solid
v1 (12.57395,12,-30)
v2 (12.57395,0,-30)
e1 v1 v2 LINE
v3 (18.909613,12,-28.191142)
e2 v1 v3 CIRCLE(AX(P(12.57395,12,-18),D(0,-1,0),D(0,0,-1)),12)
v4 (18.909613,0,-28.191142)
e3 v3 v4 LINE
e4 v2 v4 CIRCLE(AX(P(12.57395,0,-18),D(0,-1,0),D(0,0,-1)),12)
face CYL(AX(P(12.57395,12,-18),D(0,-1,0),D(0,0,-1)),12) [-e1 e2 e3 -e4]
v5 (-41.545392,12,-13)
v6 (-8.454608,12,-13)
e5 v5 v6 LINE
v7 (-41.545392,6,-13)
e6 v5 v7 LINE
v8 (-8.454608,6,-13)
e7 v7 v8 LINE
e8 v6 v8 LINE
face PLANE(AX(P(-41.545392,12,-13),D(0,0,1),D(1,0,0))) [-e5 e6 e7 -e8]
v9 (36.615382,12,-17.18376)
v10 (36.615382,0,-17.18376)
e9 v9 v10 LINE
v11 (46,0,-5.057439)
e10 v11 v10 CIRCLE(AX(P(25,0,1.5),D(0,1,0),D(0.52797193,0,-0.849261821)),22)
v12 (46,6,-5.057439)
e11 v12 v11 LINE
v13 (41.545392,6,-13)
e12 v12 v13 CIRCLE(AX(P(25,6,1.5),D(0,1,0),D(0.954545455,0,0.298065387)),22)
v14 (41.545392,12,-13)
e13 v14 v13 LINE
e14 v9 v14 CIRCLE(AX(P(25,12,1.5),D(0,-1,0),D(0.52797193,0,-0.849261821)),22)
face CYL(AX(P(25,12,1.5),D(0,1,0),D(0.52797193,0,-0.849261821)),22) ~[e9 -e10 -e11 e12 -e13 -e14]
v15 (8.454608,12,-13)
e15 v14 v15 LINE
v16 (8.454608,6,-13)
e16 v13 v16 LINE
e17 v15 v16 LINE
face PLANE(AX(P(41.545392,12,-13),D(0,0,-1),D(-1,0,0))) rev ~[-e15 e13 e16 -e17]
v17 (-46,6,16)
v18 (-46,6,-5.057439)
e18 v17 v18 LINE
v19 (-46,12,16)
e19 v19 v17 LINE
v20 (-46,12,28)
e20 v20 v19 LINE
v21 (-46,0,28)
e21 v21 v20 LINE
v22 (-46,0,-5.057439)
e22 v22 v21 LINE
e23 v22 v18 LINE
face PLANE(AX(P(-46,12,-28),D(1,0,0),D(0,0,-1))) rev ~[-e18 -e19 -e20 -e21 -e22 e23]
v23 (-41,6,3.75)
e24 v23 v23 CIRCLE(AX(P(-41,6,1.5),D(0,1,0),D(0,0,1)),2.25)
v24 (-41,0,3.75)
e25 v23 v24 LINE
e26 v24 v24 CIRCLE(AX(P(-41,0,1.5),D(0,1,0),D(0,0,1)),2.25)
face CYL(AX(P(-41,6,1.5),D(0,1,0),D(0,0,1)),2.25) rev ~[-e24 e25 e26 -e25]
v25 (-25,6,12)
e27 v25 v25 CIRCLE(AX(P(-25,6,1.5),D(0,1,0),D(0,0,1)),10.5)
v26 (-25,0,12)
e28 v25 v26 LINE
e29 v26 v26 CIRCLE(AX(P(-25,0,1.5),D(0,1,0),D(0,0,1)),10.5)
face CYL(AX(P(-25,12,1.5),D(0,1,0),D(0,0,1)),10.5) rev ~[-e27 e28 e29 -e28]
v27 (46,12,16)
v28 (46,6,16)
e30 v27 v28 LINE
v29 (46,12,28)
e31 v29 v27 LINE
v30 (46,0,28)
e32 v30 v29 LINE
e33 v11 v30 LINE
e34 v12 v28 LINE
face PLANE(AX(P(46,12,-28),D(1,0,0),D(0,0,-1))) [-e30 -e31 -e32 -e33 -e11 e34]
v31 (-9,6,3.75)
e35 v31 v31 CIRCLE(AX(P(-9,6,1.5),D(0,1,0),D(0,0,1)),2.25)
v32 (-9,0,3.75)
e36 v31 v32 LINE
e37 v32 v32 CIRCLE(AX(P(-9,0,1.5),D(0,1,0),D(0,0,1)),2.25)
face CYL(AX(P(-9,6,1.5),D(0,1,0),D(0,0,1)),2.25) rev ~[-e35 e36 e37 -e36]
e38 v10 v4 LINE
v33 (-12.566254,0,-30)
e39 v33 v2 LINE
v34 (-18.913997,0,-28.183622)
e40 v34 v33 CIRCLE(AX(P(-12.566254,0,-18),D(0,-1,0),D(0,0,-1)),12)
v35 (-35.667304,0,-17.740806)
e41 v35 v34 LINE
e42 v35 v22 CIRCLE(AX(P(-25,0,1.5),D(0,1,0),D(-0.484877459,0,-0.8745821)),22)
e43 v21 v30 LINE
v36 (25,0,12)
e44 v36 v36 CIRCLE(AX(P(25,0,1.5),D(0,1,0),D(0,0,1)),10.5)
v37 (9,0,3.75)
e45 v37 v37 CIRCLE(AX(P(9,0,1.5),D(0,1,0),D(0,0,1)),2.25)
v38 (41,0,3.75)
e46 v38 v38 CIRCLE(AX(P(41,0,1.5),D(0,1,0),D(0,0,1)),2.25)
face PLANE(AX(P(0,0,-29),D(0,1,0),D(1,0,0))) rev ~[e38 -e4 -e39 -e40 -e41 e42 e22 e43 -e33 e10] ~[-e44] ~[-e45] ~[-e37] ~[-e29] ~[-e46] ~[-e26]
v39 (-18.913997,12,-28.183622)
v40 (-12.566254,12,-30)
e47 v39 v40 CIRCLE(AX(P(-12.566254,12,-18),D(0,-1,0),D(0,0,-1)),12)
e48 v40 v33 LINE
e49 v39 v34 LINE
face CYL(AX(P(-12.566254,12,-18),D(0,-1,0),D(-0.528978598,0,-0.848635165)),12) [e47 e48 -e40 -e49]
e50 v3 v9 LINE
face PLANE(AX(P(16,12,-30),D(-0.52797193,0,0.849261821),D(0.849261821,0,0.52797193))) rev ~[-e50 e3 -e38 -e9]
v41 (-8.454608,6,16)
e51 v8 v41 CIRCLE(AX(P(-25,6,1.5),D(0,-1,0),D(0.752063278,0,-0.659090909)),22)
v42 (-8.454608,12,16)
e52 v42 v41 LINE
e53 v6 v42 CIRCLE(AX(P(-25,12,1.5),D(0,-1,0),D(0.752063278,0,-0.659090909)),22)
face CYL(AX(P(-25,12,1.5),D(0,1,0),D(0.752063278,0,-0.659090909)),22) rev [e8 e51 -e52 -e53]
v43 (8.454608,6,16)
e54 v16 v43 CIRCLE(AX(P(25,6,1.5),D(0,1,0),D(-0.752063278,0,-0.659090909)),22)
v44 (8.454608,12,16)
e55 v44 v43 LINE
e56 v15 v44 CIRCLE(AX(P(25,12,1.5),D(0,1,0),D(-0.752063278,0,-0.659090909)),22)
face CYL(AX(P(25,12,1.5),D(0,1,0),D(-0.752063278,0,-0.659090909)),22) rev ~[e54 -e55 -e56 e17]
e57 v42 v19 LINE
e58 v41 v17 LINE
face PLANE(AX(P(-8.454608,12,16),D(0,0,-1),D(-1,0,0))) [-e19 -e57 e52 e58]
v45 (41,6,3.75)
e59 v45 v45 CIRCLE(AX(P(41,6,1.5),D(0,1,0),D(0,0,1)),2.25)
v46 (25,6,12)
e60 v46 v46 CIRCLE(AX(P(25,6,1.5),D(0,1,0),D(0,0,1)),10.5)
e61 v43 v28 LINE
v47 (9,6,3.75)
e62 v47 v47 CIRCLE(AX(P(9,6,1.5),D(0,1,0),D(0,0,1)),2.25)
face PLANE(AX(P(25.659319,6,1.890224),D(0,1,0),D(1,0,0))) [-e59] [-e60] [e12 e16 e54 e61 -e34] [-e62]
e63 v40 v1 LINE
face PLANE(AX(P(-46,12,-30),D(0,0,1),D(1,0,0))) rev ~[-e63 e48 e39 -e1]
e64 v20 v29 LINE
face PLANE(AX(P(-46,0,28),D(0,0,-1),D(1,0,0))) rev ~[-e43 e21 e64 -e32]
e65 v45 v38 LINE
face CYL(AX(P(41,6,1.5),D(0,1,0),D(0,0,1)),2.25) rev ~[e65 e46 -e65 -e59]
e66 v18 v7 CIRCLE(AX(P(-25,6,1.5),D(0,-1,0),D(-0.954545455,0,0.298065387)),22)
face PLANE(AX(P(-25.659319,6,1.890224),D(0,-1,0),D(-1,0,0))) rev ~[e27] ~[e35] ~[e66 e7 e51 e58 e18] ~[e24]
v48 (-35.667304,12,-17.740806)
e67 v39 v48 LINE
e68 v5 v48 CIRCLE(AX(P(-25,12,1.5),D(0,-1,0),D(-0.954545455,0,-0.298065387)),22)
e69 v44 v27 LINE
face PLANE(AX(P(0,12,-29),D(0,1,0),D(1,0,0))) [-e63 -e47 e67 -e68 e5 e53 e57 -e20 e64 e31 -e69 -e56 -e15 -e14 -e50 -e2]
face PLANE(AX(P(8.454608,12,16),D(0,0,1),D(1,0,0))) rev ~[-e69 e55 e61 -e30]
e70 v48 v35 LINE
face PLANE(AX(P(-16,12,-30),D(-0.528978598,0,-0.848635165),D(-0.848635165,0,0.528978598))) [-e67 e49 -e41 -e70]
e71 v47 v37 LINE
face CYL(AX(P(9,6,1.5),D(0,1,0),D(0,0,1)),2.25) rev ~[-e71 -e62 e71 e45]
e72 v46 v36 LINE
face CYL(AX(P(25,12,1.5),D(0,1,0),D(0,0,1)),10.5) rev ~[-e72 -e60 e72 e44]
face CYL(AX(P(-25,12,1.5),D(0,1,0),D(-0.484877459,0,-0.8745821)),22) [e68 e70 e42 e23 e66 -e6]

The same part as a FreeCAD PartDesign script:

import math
import FreeCAD as App
import Part
import Sketcher
from FreeCAD import Vector


def edges_at(feature, points):
    """Names of the edges that pass closest to the given points."""
    edges = feature.Shape.Edges
    near = lambda p: min(range(len(edges)), key=lambda i: edges[i].distToShape(Part.Vertex(*p))[0])
    return sorted({f"Edge{near(p) + 1}" for p in points})


def add_polygon(sketch, points):
    """Adds a closed chain of lines whose ends are joined by coincident constraints."""
    first, n = sketch.GeometryCount, len(points)
    for a, b in zip(points, points[1:] + points[:1]):
        sketch.addGeometry(Part.LineSegment(App.Vector(*a, 0), App.Vector(*b, 0)), False)
    for i in range(n):
        sketch.addConstraint(Sketcher.Constraint("Coincident", first + i, 2, first + (i + 1) % n, 1))

doc = App.newDocument("Part")
body = doc.addObject("PartDesign::Body", "Body")

sketch1 = body.newObject("Sketcher::SketchObject", "Sketch")
sketch1.AttachmentSupport = (doc.getObject("XZ_Plane"), [""])
sketch1.MapMode = "FlatFace"
add_polygon(sketch1, [(-46, -28), (-46, 28), (46, 28), (46, -28)])
sketch1.addConstraint(Sketcher.Constraint("Vertical", 0))
sketch1.addConstraint(Sketcher.Constraint("Horizontal", 1))
sketch1.addConstraint(Sketcher.Constraint("Vertical", 2))
sketch1.addConstraint(Sketcher.Constraint("Horizontal", 3))
sketch1.addConstraint(Sketcher.Constraint("Symmetric", 0, 2, 2, 2, -1, 1))
sketch1.addConstraint(Sketcher.Constraint("DistanceX", 1, 1, 1, 2, 92.0))
sketch1.addConstraint(Sketcher.Constraint("DistanceY", 0, 1, 0, 2, 56.0))
pad1 = body.newObject("PartDesign::Pad", "Pad")
pad1.Profile = sketch1
pad1.Length = 12
pad1.Reversed = True

sketch2 = body.newObject("Sketcher::SketchObject", "Sketch001")
sketch2.AttachmentSupport = (doc.getObject("XZ_Plane"), [""])
sketch2.MapMode = "FlatFace"
sketch2.AttachmentOffset = App.Placement(Vector(0, 0, -12), App.Rotation())
add_polygon(sketch2, [(-46, -30), (-46, -28), (46, -28), (46, -30)])
sketch2.addConstraint(Sketcher.Constraint("Vertical", 0))
sketch2.addConstraint(Sketcher.Constraint("Horizontal", 1))
sketch2.addConstraint(Sketcher.Constraint("Vertical", 2))
sketch2.addConstraint(Sketcher.Constraint("Horizontal", 3))
sketch2.addConstraint(Sketcher.Constraint("DistanceX", 1, 1, 1, 2, 92.0))
sketch2.addConstraint(Sketcher.Constraint("DistanceY", 0, 1, 0, 2, 2.0))
sketch2.addConstraint(Sketcher.Constraint("DistanceX", 0, 2, -1, 1, 46.0))
sketch2.addConstraint(Sketcher.Constraint("DistanceY", 0, 2, -1, 1, 28.0))
pad2 = body.newObject("PartDesign::Pad", "Pad001")
pad2.Profile = sketch2
pad2.Length = 12

sketch3 = body.newObject("Sketcher::SketchObject", "Sketch002")
sketch3.AttachmentSupport = (doc.getObject("XZ_Plane"), [""])
sketch3.MapMode = "FlatFace"
sketch3.AttachmentOffset = App.Placement(Vector(0, 0, -12), App.Rotation())
sketch3.addGeometry(Part.Circle(Vector(-25, 2, 0), Vector(0, 0, 1), 10), False)
sketch3.addConstraint(Sketcher.Constraint("Diameter", 0, 21.0))
sketch3.addConstraint(Sketcher.Constraint("DistanceX", 0, 3, -1, 1, 25.0))
sketch3.addConstraint(Sketcher.Constraint("DistanceY", -1, 1, 0, 3, 1.5))
pocket1 = body.newObject("PartDesign::Pocket", "Pocket")
pocket1.Profile = sketch3
pocket1.Type = "UpToFirst"
pocket1.Reversed = True

sketch4 = body.newObject("Sketcher::SketchObject", "Sketch003")
sketch4.AttachmentSupport = (doc.getObject("XZ_Plane"), [""])
sketch4.MapMode = "FlatFace"
sketch4.AttachmentOffset = App.Placement(Vector(0, 0, -12), App.Rotation())
sketch4.addGeometry(Part.Circle(Vector(25, 2, 0), Vector(0, 0, 1), 10), False)
sketch4.addConstraint(Sketcher.Constraint("Diameter", 0, 21.0))
sketch4.addConstraint(Sketcher.Constraint("DistanceX", -1, 1, 0, 3, 25.0))
sketch4.addConstraint(Sketcher.Constraint("DistanceY", -1, 1, 0, 3, 1.5))
pocket2 = body.newObject("PartDesign::Pocket", "Pocket001")
pocket2.Profile = sketch4
pocket2.Type = "UpToFirst"
pocket2.Reversed = True

sketch5 = body.newObject("Sketcher::SketchObject", "Sketch004")
sketch5.AttachmentSupport = (doc.getObject("XZ_Plane"), [""])
sketch5.MapMode = "FlatFace"
sketch5.AttachmentOffset = App.Placement(Vector(0, 0, -12), App.Rotation())
sketch5.addGeometry(Part.LineSegment(Vector(-46, 8, 0), Vector(-46, 16, 0)), False)
sketch5.addGeometry(Part.LineSegment(Vector(-46, 16, 0), Vector(-8, 16, 0)), False)
sketch5.addGeometry(Part.ArcOfCircle(Part.Circle(Vector(-25, 2, 0), Vector(0, 0, 1), 22), math.radians(-41), math.radians(41)), False)
sketch5.addGeometry(Part.LineSegment(Vector(-8, -13, 0), Vector(-42, -13, 0)), False)
sketch5.addGeometry(Part.ArcOfCircle(Part.Circle(Vector(-25, 2, 0), Vector(0, 0, 1), 22), math.radians(163), math.radians(221)), False)
sketch5.addGeometry(Part.LineSegment(Vector(46, 16, 0), Vector(46, 8, 0)), False)
sketch5.addGeometry(Part.ArcOfCircle(Part.Circle(Vector(25, 2, 0), Vector(0, 0, 1), 22), math.radians(-41), math.radians(17)), False)
sketch5.addGeometry(Part.LineSegment(Vector(42, -13, 0), Vector(8, -13, 0)), False)
sketch5.addGeometry(Part.ArcOfCircle(Part.Circle(Vector(25, 2, 0), Vector(0, 0, 1), 22), math.radians(139), math.radians(221)), False)
sketch5.addGeometry(Part.LineSegment(Vector(8, 16, 0), Vector(46, 16, 0)), False)
sketch5.addConstraint(Sketcher.Constraint("Coincident", 0, 2, 1, 1))
sketch5.addConstraint(Sketcher.Constraint("Coincident", 1, 2, 2, 2))
sketch5.addConstraint(Sketcher.Constraint("Coincident", 2, 1, 3, 1))
sketch5.addConstraint(Sketcher.Constraint("Coincident", 3, 2, 4, 2))
sketch5.addConstraint(Sketcher.Constraint("Coincident", 4, 1, 0, 1))
sketch5.addConstraint(Sketcher.Constraint("Coincident", 5, 2, 6, 2))
sketch5.addConstraint(Sketcher.Constraint("Coincident", 6, 1, 7, 1))
sketch5.addConstraint(Sketcher.Constraint("Coincident", 7, 2, 8, 2))
sketch5.addConstraint(Sketcher.Constraint("Coincident", 8, 1, 9, 1))
sketch5.addConstraint(Sketcher.Constraint("Coincident", 9, 2, 5, 1))
sketch5.addConstraint(Sketcher.Constraint("Vertical", 0))
sketch5.addConstraint(Sketcher.Constraint("Horizontal", 1))
sketch5.addConstraint(Sketcher.Constraint("Horizontal", 3))
sketch5.addConstraint(Sketcher.Constraint("Vertical", 5))
sketch5.addConstraint(Sketcher.Constraint("Horizontal", 7))
sketch5.addConstraint(Sketcher.Constraint("Horizontal", 9))
sketch5.addConstraint(Sketcher.Constraint("Coincident", 4, 3, 2, 3))
sketch5.addConstraint(Sketcher.Constraint("Coincident", 8, 3, 6, 3))
sketch5.addConstraint(Sketcher.Constraint("Equal", 2, 4))
sketch5.addConstraint(Sketcher.Constraint("Equal", 4, 6))
sketch5.addConstraint(Sketcher.Constraint("Equal", 6, 8))
sketch5.addConstraint(Sketcher.Constraint("Symmetric", 2, 3, 6, 3, -2))
sketch5.addConstraint(Sketcher.Constraint("Symmetric", 0, 2, 9, 2, -2))
sketch5.addConstraint(Sketcher.Constraint("Horizontal", 3, 2, 6, 1))
sketch5.addConstraint(Sketcher.Constraint("Vertical", 1, 2, 2, 1))
sketch5.addConstraint(Sketcher.Constraint("Radius", 2, 22.0))
sketch5.addConstraint(Sketcher.Constraint("DistanceX", 2, 3, -1, 1, 25.0))
sketch5.addConstraint(Sketcher.Constraint("DistanceX", 0, 2, -1, 1, 46.0))
sketch5.addConstraint(Sketcher.Constraint("DistanceY", -1, 1, 0, 2, 16.0))
sketch5.addConstraint(Sketcher.Constraint("DistanceY", 2, 1, -1, 1, 13.0))
pocket3 = body.newObject("PartDesign::Pocket", "Pocket002")
pocket3.Profile = sketch5
pocket3.Length = 6
pocket3.Reversed = True

sketch6 = body.newObject("Sketcher::SketchObject", "Sketch005")
sketch6.AttachmentSupport = (doc.getObject("XZ_Plane"), [""])
sketch6.MapMode = "FlatFace"
sketch6.AttachmentOffset = App.Placement(Vector(0, 0, -6), App.Rotation())
sketch6.addGeometry(Part.Circle(Vector(-41, 1.5, 0), Vector(0, 0, 1), 2.2), False)
sketch6.addConstraint(Sketcher.Constraint("Diameter", 0, 4.5))
sketch6.addConstraint(Sketcher.Constraint("DistanceX", 0, 3, -1, 1, 41.0))
sketch6.addConstraint(Sketcher.Constraint("DistanceY", -1, 1, 0, 3, 1.5))
pocket4 = body.newObject("PartDesign::Pocket", "Pocket003")
pocket4.Profile = sketch6
pocket4.Type = "UpToFirst"
pocket4.Reversed = True

sketch7 = body.newObject("Sketcher::SketchObject", "Sketch006")
sketch7.AttachmentSupport = (doc.getObject("XZ_Plane"), [""])
sketch7.MapMode = "FlatFace"
sketch7.AttachmentOffset = App.Placement(Vector(0, 0, -6), App.Rotation())
sketch7.addGeometry(Part.Circle(Vector(-9, 1.5, 0), Vector(0, 0, 1), 2.2), False)
sketch7.addConstraint(Sketcher.Constraint("Diameter", 0, 4.5))
sketch7.addConstraint(Sketcher.Constraint("DistanceX", 0, 3, -1, 1, 9.0))
sketch7.addConstraint(Sketcher.Constraint("DistanceY", -1, 1, 0, 3, 1.5))
pocket5 = body.newObject("PartDesign::Pocket", "Pocket004")
pocket5.Profile = sketch7
pocket5.Type = "UpToFirst"
pocket5.Reversed = True

sketch8 = body.newObject("Sketcher::SketchObject", "Sketch007")
sketch8.AttachmentSupport = (doc.getObject("XZ_Plane"), [""])
sketch8.MapMode = "FlatFace"
sketch8.AttachmentOffset = App.Placement(Vector(0, 0, -6), App.Rotation())
sketch8.addGeometry(Part.Circle(Vector(9, 1.5, 0), Vector(0, 0, 1), 2.2), False)
sketch8.addConstraint(Sketcher.Constraint("Diameter", 0, 4.5))
sketch8.addConstraint(Sketcher.Constraint("DistanceX", -1, 1, 0, 3, 9.0))
sketch8.addConstraint(Sketcher.Constraint("DistanceY", -1, 1, 0, 3, 1.5))
pocket6 = body.newObject("PartDesign::Pocket", "Pocket005")
pocket6.Profile = sketch8
pocket6.Type = "UpToFirst"
pocket6.Reversed = True

sketch9 = body.newObject("Sketcher::SketchObject", "Sketch008")
sketch9.AttachmentSupport = (doc.getObject("XZ_Plane"), [""])
sketch9.MapMode = "FlatFace"
sketch9.AttachmentOffset = App.Placement(Vector(0, 0, -6), App.Rotation())
sketch9.addGeometry(Part.Circle(Vector(41, 1.5, 0), Vector(0, 0, 1), 2.2), False)
sketch9.addConstraint(Sketcher.Constraint("Diameter", 0, 4.5))
sketch9.addConstraint(Sketcher.Constraint("DistanceX", -1, 1, 0, 3, 41.0))
sketch9.addConstraint(Sketcher.Constraint("DistanceY", -1, 1, 0, 3, 1.5))
pocket7 = body.newObject("PartDesign::Pocket", "Pocket006")
pocket7.Profile = sketch9
pocket7.Type = "UpToFirst"
pocket7.Reversed = True

sketch10 = body.newObject("Sketcher::SketchObject", "Sketch009")
sketch10.AttachmentSupport = (doc.getObject("XZ_Plane"), [""])
sketch10.MapMode = "FlatFace"
sketch10.AttachmentOffset = App.Placement(Vector(0, 0, -12), App.Rotation())
sketch10.addGeometry(Part.LineSegment(Vector(-46, -30, 0), Vector(-46, -5, 0)), False)
sketch10.addGeometry(Part.ArcOfCircle(Part.Circle(Vector(-25, 1, 0), Vector(0, 0, 1), 22), math.radians(-163), math.radians(-119)), False)
sketch10.addGeometry(Part.LineSegment(Vector(-36, -18, 0), Vector(-16, -30, 0)), False)
sketch10.addGeometry(Part.LineSegment(Vector(-16, -30, 0), Vector(-46, -30, 0)), False)
sketch10.addConstraint(Sketcher.Constraint("Coincident", 0, 2, 1, 1))
sketch10.addConstraint(Sketcher.Constraint("Coincident", 1, 2, 2, 1))
sketch10.addConstraint(Sketcher.Constraint("Coincident", 2, 2, 3, 1))
sketch10.addConstraint(Sketcher.Constraint("Coincident", 3, 2, 0, 1))
sketch10.addConstraint(Sketcher.Constraint("Vertical", 0))
sketch10.addConstraint(Sketcher.Constraint("Horizontal", 3))
sketch10.addConstraint(Sketcher.Constraint("Radius", 1, 22.0))
sketch10.addConstraint(Sketcher.Constraint("DistanceX", 3, 2, 3, 1, 30.0))
sketch10.addConstraint(Sketcher.Constraint("DistanceX", 1, 3, -1, 1, 25.0))
sketch10.addConstraint(Sketcher.Constraint("DistanceX", 0, 2, -1, 1, 46.0))
sketch10.addConstraint(Sketcher.Constraint("DistanceY", 2, 2, -1, 1, 30.0))
sketch10.addConstraint(Sketcher.Constraint("DistanceY", -1, 1, 1, 3, 1.5))
sketch10.addConstraint(Sketcher.Constraint("Distance", 2, 23.175217))
pocket8 = body.newObject("PartDesign::Pocket", "Pocket007")
pocket8.Profile = sketch10
pocket8.Type = "UpToFirst"
pocket8.Reversed = True

sketch11 = body.newObject("Sketcher::SketchObject", "Sketch010")
sketch11.AttachmentSupport = (doc.getObject("XZ_Plane"), [""])
sketch11.MapMode = "FlatFace"
sketch11.AttachmentOffset = App.Placement(Vector(0, 0, -12), App.Rotation())
sketch11.addGeometry(Part.LineSegment(Vector(46, -5, 0), Vector(46, -30, 0)), False)
sketch11.addGeometry(Part.LineSegment(Vector(46, -30, 0), Vector(16, -30, 0)), False)
sketch11.addGeometry(Part.LineSegment(Vector(16, -30, 0), Vector(37, -17, 0)), False)
sketch11.addGeometry(Part.ArcOfCircle(Part.Circle(Vector(25, 2, 0), Vector(0, 0, 1), 22), math.radians(-58), math.radians(-17)), False)
sketch11.addConstraint(Sketcher.Constraint("Coincident", 0, 2, 1, 1))
sketch11.addConstraint(Sketcher.Constraint("Coincident", 1, 2, 2, 1))
sketch11.addConstraint(Sketcher.Constraint("Tangent", 2, 2, 3, 1))
sketch11.addConstraint(Sketcher.Constraint("Coincident", 3, 2, 0, 1))
sketch11.addConstraint(Sketcher.Constraint("Vertical", 0))
sketch11.addConstraint(Sketcher.Constraint("Horizontal", 1))
sketch11.addConstraint(Sketcher.Constraint("Radius", 3, 22.0))
sketch11.addConstraint(Sketcher.Constraint("DistanceX", 1, 2, 1, 1, 30.0))
sketch11.addConstraint(Sketcher.Constraint("DistanceX", -1, 1, 3, 3, 25.0))
sketch11.addConstraint(Sketcher.Constraint("DistanceX", -1, 1, 0, 2, 46.0))
sketch11.addConstraint(Sketcher.Constraint("DistanceY", 0, 2, -1, 1, 30.0))
sketch11.addConstraint(Sketcher.Constraint("DistanceY", -1, 1, 3, 3, 1.5))
pocket9 = body.newObject("PartDesign::Pocket", "Pocket008")
pocket9.Profile = sketch11
pocket9.Type = "UpToFirst"
pocket9.Reversed = True
doc.recompute()

fillet = body.newObject("PartDesign::Fillet", "Fillet")
fillet.Base = (pocket9, edges_at(pocket9, [(-16, 6, -30), (16, 6, -30)]))
fillet.Radius = 12

doc.recompute()
